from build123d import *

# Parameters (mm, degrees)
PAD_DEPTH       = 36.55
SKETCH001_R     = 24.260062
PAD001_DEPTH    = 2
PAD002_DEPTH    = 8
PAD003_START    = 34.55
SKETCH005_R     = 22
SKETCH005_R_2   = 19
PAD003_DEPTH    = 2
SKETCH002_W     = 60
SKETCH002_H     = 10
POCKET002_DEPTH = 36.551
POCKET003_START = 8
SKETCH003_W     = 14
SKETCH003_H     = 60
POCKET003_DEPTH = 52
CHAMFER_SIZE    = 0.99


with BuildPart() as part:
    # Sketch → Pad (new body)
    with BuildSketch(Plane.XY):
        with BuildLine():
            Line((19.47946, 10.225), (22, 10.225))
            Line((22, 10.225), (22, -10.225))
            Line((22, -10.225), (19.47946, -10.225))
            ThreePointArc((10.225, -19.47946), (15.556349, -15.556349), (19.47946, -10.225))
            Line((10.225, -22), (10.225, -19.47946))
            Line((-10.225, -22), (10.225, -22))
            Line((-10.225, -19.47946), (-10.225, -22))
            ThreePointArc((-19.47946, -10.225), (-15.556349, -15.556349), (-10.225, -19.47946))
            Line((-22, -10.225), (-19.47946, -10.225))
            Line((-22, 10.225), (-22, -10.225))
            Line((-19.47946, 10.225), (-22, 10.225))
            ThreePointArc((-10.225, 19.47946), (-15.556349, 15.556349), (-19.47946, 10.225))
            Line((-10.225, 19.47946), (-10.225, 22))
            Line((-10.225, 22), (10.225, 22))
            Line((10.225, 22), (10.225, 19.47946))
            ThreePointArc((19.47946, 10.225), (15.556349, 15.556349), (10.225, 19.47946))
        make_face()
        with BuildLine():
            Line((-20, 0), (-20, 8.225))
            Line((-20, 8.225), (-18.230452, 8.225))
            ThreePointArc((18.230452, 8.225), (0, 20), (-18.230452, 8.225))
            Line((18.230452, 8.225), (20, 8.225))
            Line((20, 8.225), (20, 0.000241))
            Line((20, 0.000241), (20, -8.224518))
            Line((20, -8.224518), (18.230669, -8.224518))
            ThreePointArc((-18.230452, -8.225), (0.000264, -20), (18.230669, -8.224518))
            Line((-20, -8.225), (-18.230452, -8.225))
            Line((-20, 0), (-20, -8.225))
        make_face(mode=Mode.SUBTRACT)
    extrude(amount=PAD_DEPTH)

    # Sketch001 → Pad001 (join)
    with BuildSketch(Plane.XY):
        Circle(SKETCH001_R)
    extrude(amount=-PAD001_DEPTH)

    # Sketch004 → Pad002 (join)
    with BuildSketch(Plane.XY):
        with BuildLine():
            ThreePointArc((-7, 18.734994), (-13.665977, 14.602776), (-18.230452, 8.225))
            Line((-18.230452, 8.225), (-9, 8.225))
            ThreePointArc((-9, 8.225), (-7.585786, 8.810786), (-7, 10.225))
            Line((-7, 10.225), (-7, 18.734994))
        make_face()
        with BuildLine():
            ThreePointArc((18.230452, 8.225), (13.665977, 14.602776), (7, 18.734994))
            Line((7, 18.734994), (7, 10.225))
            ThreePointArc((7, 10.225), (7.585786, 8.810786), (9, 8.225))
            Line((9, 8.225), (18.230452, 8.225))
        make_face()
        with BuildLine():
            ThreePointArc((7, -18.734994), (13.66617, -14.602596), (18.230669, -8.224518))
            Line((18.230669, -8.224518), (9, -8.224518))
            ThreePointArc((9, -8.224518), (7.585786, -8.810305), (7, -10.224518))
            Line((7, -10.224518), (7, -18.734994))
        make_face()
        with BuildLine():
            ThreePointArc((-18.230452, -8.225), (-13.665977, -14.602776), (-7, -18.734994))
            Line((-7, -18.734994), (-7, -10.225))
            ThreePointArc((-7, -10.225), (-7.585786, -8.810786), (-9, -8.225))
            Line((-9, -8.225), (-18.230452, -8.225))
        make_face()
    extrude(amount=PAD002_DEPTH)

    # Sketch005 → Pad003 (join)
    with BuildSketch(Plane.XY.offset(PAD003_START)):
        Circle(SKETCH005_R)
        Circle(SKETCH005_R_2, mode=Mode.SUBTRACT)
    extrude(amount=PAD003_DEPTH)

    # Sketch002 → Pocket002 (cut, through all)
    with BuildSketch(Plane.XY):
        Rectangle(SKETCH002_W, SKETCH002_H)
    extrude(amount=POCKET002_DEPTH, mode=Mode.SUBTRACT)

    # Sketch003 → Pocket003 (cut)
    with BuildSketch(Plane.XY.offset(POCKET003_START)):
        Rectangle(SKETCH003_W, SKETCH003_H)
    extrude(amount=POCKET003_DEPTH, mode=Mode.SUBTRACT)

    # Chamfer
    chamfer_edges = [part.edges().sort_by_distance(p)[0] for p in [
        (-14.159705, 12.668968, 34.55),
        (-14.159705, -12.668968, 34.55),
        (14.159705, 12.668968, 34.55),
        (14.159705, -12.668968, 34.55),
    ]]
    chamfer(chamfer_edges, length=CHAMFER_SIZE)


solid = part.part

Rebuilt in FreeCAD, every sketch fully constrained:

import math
import FreeCAD as App
import Part
import Sketcher

V = App.Vector
Q = App.Units.Quantity


def edges_at(feature, points):
    """Names of the edges that pass closest to the given points."""
    edges = feature.Shape.Edges
    near = lambda p: min(range(len(edges)), key=lambda i: edges[i].distToShape(Part.Vertex(*p))[0])
    return sorted({f"Edge{near(p) + 1}" for p in points})

doc = App.newDocument("Part")
body = doc.addObject("PartDesign::Body", "Body")

# Sketch on XY plane
sketch1 = doc.addObject("Sketcher::SketchObject", "Sketch")
body.addObject(sketch1)
sketch1.AttachmentSupport = (doc.XY_Plane, [""])
sketch1.MapMode = "FlatFace"
sketch1.addGeometry([
    Part.LineSegment(V(22, 10.2, 0), V(19.5, 10.2, 0)),  # 0
    Part.ArcOfCircle(Part.Circle(V(0, 0, 0), V(0, 0, 1), 22), math.radians(28), math.radians(62)),  # 1
    Part.LineSegment(V(10.2, 19.5, 0), V(10.2, 22, 0)),  # 2
    Part.LineSegment(V(10.2, 22, 0), V(-10.2, 22, 0)),  # 3
    Part.LineSegment(V(-10.2, 22, 0), V(-10.2, 19.5, 0)),  # 4
    Part.ArcOfCircle(Part.Circle(V(0, 0, 0), V(0, 0, 1), 22), math.radians(118), math.radians(152)),  # 5
    Part.LineSegment(V(-19.5, 10.2, 0), V(-22, 10.2, 0)),  # 6
    Part.LineSegment(V(-22, 10.2, 0), V(-22, -10.2, 0)),  # 7
    Part.LineSegment(V(-22, -10.2, 0), V(-19.5, -10.2, 0)),  # 8
    Part.ArcOfCircle(Part.Circle(V(0, 0, 0), V(0, 0, 1), 22), math.radians(-152), math.radians(-118)),  # 9
    Part.LineSegment(V(-10.2, -19.5, 0), V(-10.2, -22, 0)),  # 10
    Part.LineSegment(V(-10.2, -22, 0), V(10.2, -22, 0)),  # 11
    Part.LineSegment(V(10.2, -22, 0), V(10.2, -19.5, 0)),  # 12
    Part.ArcOfCircle(Part.Circle(V(0, 0, 0), V(0, 0, 1), 22), math.radians(-62), math.radians(-28)),  # 13
    Part.LineSegment(V(19.5, -10.2, 0), V(22, -10.2, 0)),  # 14
    Part.LineSegment(V(22, -10.2, 0), V(22, 10.2, 0)),  # 15
    Part.LineSegment(V(-20, 8.2, 0), V(-18.2, 8.2, 0)),  # 16
    Part.ArcOfCircle(Part.Circle(V(0, 0, 0), V(0, 0, 1), 20), math.radians(24), math.radians(156)),  # 17
    Part.LineSegment(V(18.2, 8.2, 0), V(20, 8.2, 0)),  # 18
    Part.LineSegment(V(20, 8.2, 0), V(20, -8.2, 0)),  # 19
    Part.LineSegment(V(20, -8.2, 0), V(18.2, -8.2, 0)),  # 20
    Part.ArcOfCircle(Part.Circle(V(0, 0, 0), V(0, 0, 1), 20), math.radians(-156), math.radians(-24)),  # 21
    Part.LineSegment(V(-18.2, -8.2, 0), V(-20, -8.2, 0)),  # 22
    Part.LineSegment(V(-20, -8.2, 0), V(-20, 8.2, 0)),  # 23
], False)
sketch1.addConstraint([
    Sketcher.Constraint("Coincident", 0, 2, 1, 1),
    Sketcher.Constraint("Coincident", 1, 2, 2, 1),
    Sketcher.Constraint("Coincident", 2, 2, 3, 1),
    Sketcher.Constraint("Coincident", 3, 2, 4, 1),
    Sketcher.Constraint("Coincident", 4, 2, 5, 1),
    Sketcher.Constraint("Coincident", 5, 2, 6, 1),
    Sketcher.Constraint("Coincident", 6, 2, 7, 1),
    Sketcher.Constraint("Coincident", 7, 2, 8, 1),
    Sketcher.Constraint("Coincident", 8, 2, 9, 1),
    Sketcher.Constraint("Coincident", 9, 2, 10, 1),
    Sketcher.Constraint("Coincident", 10, 2, 11, 1),
    Sketcher.Constraint("Coincident", 11, 2, 12, 1),
    Sketcher.Constraint("Coincident", 12, 2, 13, 1),
    Sketcher.Constraint("Coincident", 13, 2, 14, 1),
    Sketcher.Constraint("Coincident", 14, 2, 15, 1),
    Sketcher.Constraint("Coincident", 15, 2, 0, 1),
    Sketcher.Constraint("Coincident", 16, 2, 17, 2),
    Sketcher.Constraint("Coincident", 17, 1, 18, 1),
    Sketcher.Constraint("Coincident", 18, 2, 19, 1),
    Sketcher.Constraint("Coincident", 19, 2, 20, 1),
    Sketcher.Constraint("Coincident", 20, 2, 21, 2),
    Sketcher.Constraint("Coincident", 21, 1, 22, 1),
    Sketcher.Constraint("Coincident", 22, 2, 23, 1),
    Sketcher.Constraint("Coincident", 23, 2, 16, 1),
    Sketcher.Constraint("Horizontal", 0),
    Sketcher.Constraint("Vertical", 2),
    Sketcher.Constraint("Horizontal", 3),
    Sketcher.Constraint("Vertical", 4),
    Sketcher.Constraint("Horizontal", 6),
    Sketcher.Constraint("Vertical", 7),
    Sketcher.Constraint("Horizontal", 8),
    Sketcher.Constraint("Vertical", 10),
    Sketcher.Constraint("Horizontal", 11),
    Sketcher.Constraint("Vertical", 12),
    Sketcher.Constraint("Horizontal", 14),
    Sketcher.Constraint("Vertical", 15),
    Sketcher.Constraint("Horizontal", 16),
    Sketcher.Constraint("Horizontal", 18),
    Sketcher.Constraint("Vertical", 19),
    Sketcher.Constraint("Horizontal", 20),
    Sketcher.Constraint("Horizontal", 22),
    Sketcher.Constraint("Vertical", 23),
    Sketcher.Constraint("Coincident", 1, 3, -1, 1),
    Sketcher.Constraint("Coincident", 5, 3, -1, 1),
    Sketcher.Constraint("Coincident", 9, 3, -1, 1),
    Sketcher.Constraint("Coincident", 13, 3, -1, 1),
    Sketcher.Constraint("Coincident", 17, 3, -1, 1),
    Sketcher.Constraint("Coincident", 21, 3, -1, 1),
    Sketcher.Constraint("Equal", 1, 5),
    Sketcher.Constraint("Equal", 5, 9),
    Sketcher.Constraint("Equal", 9, 13),
    Sketcher.Constraint("Equal", 17, 21),
    Sketcher.Constraint("Symmetric", 2, 2, 10, 2, -1, 1),
    Sketcher.Constraint("Symmetric", 6, 2, 14, 2, -1, 1),
    Sketcher.Constraint("Symmetric", 18, 2, 22, 2, -1, 1),
    Sketcher.Constraint("Horizontal", 1, 2, 4, 2),
    Sketcher.Constraint("Horizontal", 0, 2, 5, 2),
    Sketcher.Constraint("Horizontal", 9, 2, 12, 2),
    Sketcher.Constraint("Horizontal", 8, 2, 13, 2),
    Sketcher.Constraint("Horizontal", 16, 2, 17, 1),
    Sketcher.Constraint("Equal", 14, 2),
    Sketcher.Constraint("Equal", 11, 7),
    Sketcher.Constraint("Radius", 1, Q("21.999999 mm")),
    Sketcher.Constraint("Radius", 17, Q("20 mm")),
    Sketcher.Constraint("DistanceY", -1, 1, 2, 2, Q("22 mm")),
    Sketcher.Constraint("DistanceX", -1, 1, 18, 2, Q("20 mm")),
    Sketcher.Constraint("DistanceY", 16, 2, 5, 2, Q("2 mm")),
    Sketcher.Constraint("DistanceX", 3, 2, 3, 1, Q("20.45 mm")),
    Sketcher.Constraint("DistanceX", 20, 2, 20, 1, Q("1.769331 mm")),
])
pad1 = doc.addObject("PartDesign::Pad", "Pad")
body.addObject(pad1)
pad1.Profile = sketch1
pad1.Length = 36.55

# Sketch on XY plane
sketch2 = doc.addObject("Sketcher::SketchObject", "Sketch001")
body.addObject(sketch2)
sketch2.AttachmentSupport = (doc.XY_Plane, [""])
sketch2.MapMode = "FlatFace"
sketch2.addGeometry(Part.Circle(V(0, 0, 0), V(0, 0, 1), 24), False)
sketch2.addConstraint([
    Sketcher.Constraint("Coincident", 0, 3, -1, 1),
    Sketcher.Constraint("Diameter", 0, Q("48.520124 mm")),
])
pad2 = doc.addObject("PartDesign::Pad", "Pad001")
body.addObject(pad2)
pad2.Profile = sketch2
pad2.Length = 2
pad2.Reversed = True

# Sketch on XY plane
sketch3 = doc.addObject("Sketcher::SketchObject", "Sketch002")
body.addObject(sketch3)
sketch3.AttachmentSupport = (doc.XY_Plane, [""])
sketch3.MapMode = "FlatFace"
sketch3.addGeometry([
    Part.ArcOfCircle(Part.Circle(V(0, 0, 0), V(0, 0, 1), 20), math.radians(110), math.radians(156)),  # 0
    Part.LineSegment(V(-18.2, 8.2, 0), V(-9, 8.2, 0)),  # 1
    Part.ArcOfCircle(Part.Circle(V(-9, 10.2, 0), V(0, 0, 1), 2), math.radians(-90), math.radians(0)),  # 2
    Part.LineSegment(V(-7, 10.2, 0), V(-7, 18.7, 0)),  # 3
    Part.ArcOfCircle(Part.Circle(V(0, 0, 0), V(0, 0, 1), 20), math.radians(24), math.radians(70)),  # 4
    Part.LineSegment(V(7, 18.7, 0), V(7, 10.2, 0)),  # 5
    Part.ArcOfCircle(Part.Circle(V(9, 10.2, 0), V(0, 0, 1), 2), math.radians(180), math.radians(270)),  # 6
    Part.LineSegment(V(9, 8.2, 0), V(18.2, 8.2, 0)),  # 7
    Part.ArcOfCircle(Part.Circle(V(0, 0, 0), V(0, 0, 1), 20), math.radians(-70), math.radians(-24)),  # 8
    Part.LineSegment(V(18.2, -8.2, 0), V(9, -8.2, 0)),  # 9
    Part.ArcOfCircle(Part.Circle(V(9, -10.2, 0), V(0, 0, 1), 2), math.radians(90), math.radians(180)),  # 10
    Part.LineSegment(V(7, -10.2, 0), V(7, -18.7, 0)),  # 11
    Part.ArcOfCircle(Part.Circle(V(0, 0, 0), V(0, 0, 1), 20), math.radians(-156), math.radians(-110)),  # 12
    Part.LineSegment(V(-7, -18.7, 0), V(-7, -10.2, 0)),  # 13
    Part.ArcOfCircle(Part.Circle(V(-9, -10.2, 0), V(0, 0, 1), 2), math.radians(0), math.radians(90)),  # 14
    Part.LineSegment(V(-9, -8.2, 0), V(-18.2, -8.2, 0)),  # 15
], False)
sketch3.addConstraint([
    Sketcher.Constraint("Coincident", 0, 2, 1, 1),
    Sketcher.Constraint("Tangent", 1, 2, 2, 1),
    Sketcher.Constraint("Tangent", 2, 2, 3, 1),
    Sketcher.Constraint("Coincident", 3, 2, 0, 1),
    Sketcher.Constraint("Coincident", 4, 2, 5, 1),
    Sketcher.Constraint("Tangent", 5, 2, 6, 1),
    Sketcher.Constraint("Tangent", 6, 2, 7, 1),
    Sketcher.Constraint("Coincident", 7, 2, 4, 1),
    Sketcher.Constraint("Coincident", 8, 2, 9, 1),
    Sketcher.Constraint("Tangent", 9, 2, 10, 1),
    Sketcher.Constraint("Tangent", 10, 2, 11, 1),
    Sketcher.Constraint("Coincident", 11, 2, 8, 1),
    Sketcher.Constraint("Coincident", 12, 2, 13, 1),
    Sketcher.Constraint("Tangent", 13, 2, 14, 1),
    Sketcher.Constraint("Tangent", 14, 2, 15, 1),
    Sketcher.Constraint("Coincident", 15, 2, 12, 1),
    Sketcher.Constraint("Horizontal", 1),
    Sketcher.Constraint("Vertical", 3),
    Sketcher.Constraint("Vertical", 5),
    Sketcher.Constraint("Horizontal", 7),
    Sketcher.Constraint("Horizontal", 9),
    Sketcher.Constraint("Vertical", 11),
    Sketcher.Constraint("Vertical", 13),
    Sketcher.Constraint("Horizontal", 15),
    Sketcher.Constraint("Coincident", 0, 3, -1, 1),
    Sketcher.Constraint("Coincident", 4, 3, -1, 1),
    Sketcher.Constraint("Coincident", 8, 3, -1, 1),
    Sketcher.Constraint("Coincident", 12, 3, -1, 1),
    Sketcher.Constraint("Equal", 0, 4),
    Sketcher.Constraint("Equal", 2, 6),
    Sketcher.Constraint("Equal", 6, 10),
    Sketcher.Constraint("Equal", 4, 12),
    Sketcher.Constraint("Equal", 10, 14),
    Sketcher.Constraint("Symmetric", 6, 3, 14, 3, -1, 1),
    Sketcher.Constraint("Symmetric", 3, 2, 11, 2, -1, 1),
    Sketcher.Constraint("Symmetric", 2, 3, 6, 3, -2),
    Sketcher.Constraint("Radius", 2, Q("1.999999 mm")),
    Sketcher.Constraint("DistanceX", 2, 3, -1, 1, Q("8.999999 mm")),
    Sketcher.Constraint("DistanceY", 15, 2, 0, 2, Q("16.45 mm")),
    Sketcher.Constraint("Radius", 0, Q("20.000003 mm")),
    Sketcher.Constraint("DistanceX", 9, 2, 9, 1, Q("9.230669 mm")),
])
pad3 = doc.addObject("PartDesign::Pad", "Pad002")
body.addObject(pad3)
pad3.Profile = sketch3
pad3.Length = 8

# Sketch on XY plane
sketch4 = doc.addObject("Sketcher::SketchObject", "Sketch003")
body.addObject(sketch4)
sketch4.AttachmentSupport = (doc.XY_Plane, [""])
sketch4.MapMode = "FlatFace"
sketch4.AttachmentOffset = App.Placement(V(0, 0, 34.55), App.Rotation())
sketch4.addGeometry([
    Part.Circle(V(0, 0, 0), V(0, 0, 1), 22),
    Part.Circle(V(0, 0, 0), V(0, 0, 1), 19),
], False)
sketch4.addConstraint([
    Sketcher.Constraint("Coincident", 0, 3, -1, 1),
    Sketcher.Constraint("Coincident", 1, 3, -1, 1),
    Sketcher.Constraint("Diameter", 0, Q("44 mm")),
    Sketcher.Constraint("Diameter", 1, Q("38 mm")),
])
pad4 = doc.addObject("PartDesign::Pad", "Pad003")
body.addObject(pad4)
pad4.Profile = sketch4
pad4.Length = 2

# Sketch on XY plane
sketch5 = doc.addObject("Sketcher::SketchObject", "Sketch004")
body.addObject(sketch5)
sketch5.AttachmentSupport = (doc.XY_Plane, [""])
sketch5.MapMode = "FlatFace"
sketch5.addGeometry([
    Part.LineSegment(V(-30, 5, 0), V(-30, -5, 0)),
    Part.LineSegment(V(-30, -5, 0), V(30, -5, 0)),
    Part.LineSegment(V(30, -5, 0), V(30, 5, 0)),
    Part.LineSegment(V(30, 5, 0), V(-30, 5, 0)),
], False)
sketch5.addConstraint([
    Sketcher.Constraint("Coincident", 0, 2, 1, 1),
    Sketcher.Constraint("Coincident", 1, 2, 2, 1),
    Sketcher.Constraint("Coincident", 2, 2, 3, 1),
    Sketcher.Constraint("Coincident", 3, 2, 0, 1),
    Sketcher.Constraint("Vertical", 0),
    Sketcher.Constraint("Horizontal", 1),
    Sketcher.Constraint("Vertical", 2),
    Sketcher.Constraint("Horizontal", 3),
    Sketcher.Constraint("Symmetric", 0, 2, 2, 2, -1, 1),
    Sketcher.Constraint("DistanceX", 1, 1, 1, 2, Q("60 mm")),
    Sketcher.Constraint("DistanceY", 0, 2, 0, 1, Q("10 mm")),
])
pocket1 = doc.addObject("PartDesign::Pocket", "Pocket")
body.addObject(pocket1)
pocket1.Profile = sketch5
pocket1.Type = "ThroughAll"
pocket1.Reversed = True

# Sketch on XY plane
sketch6 = doc.addObject("Sketcher::SketchObject", "Sketch005")
body.addObject(sketch6)
sketch6.AttachmentSupport = (doc.XY_Plane, [""])
sketch6.MapMode = "FlatFace"
sketch6.AttachmentOffset = App.Placement(V(0, 0, 8), App.Rotation())
sketch6.addGeometry([
    Part.LineSegment(V(-7, 30, 0), V(-7, -30, 0)),
    Part.LineSegment(V(-7, -30, 0), V(7, -30, 0)),
    Part.LineSegment(V(7, -30, 0), V(7, 30, 0)),
    Part.LineSegment(V(7, 30, 0), V(-7, 30, 0)),
], False)
sketch6.addConstraint([
    Sketcher.Constraint("Coincident", 0, 2, 1, 1),
    Sketcher.Constraint("Coincident", 1, 2, 2, 1),
    Sketcher.Constraint("Coincident", 2, 2, 3, 1),
    Sketcher.Constraint("Coincident", 3, 2, 0, 1),
    Sketcher.Constraint("Vertical", 0),
    Sketcher.Constraint("Horizontal", 1),
    Sketcher.Constraint("Vertical", 2),
    Sketcher.Constraint("Horizontal", 3),
    Sketcher.Constraint("Symmetric", 0, 2, 2, 2, -1, 1),
    Sketcher.Constraint("DistanceX", 1, 1, 1, 2, Q("14 mm")),
    Sketcher.Constraint("DistanceY", 0, 2, 0, 1, Q("60 mm")),
])
pocket2 = doc.addObject("PartDesign::Pocket", "Pocket001")
body.addObject(pocket2)
pocket2.Profile = sketch6
pocket2.Length = 52
pocket2.Reversed = True
doc.recompute()

chamfer = doc.addObject("PartDesign::Chamfer", "Chamfer")
body.addObject(chamfer)
chamfer.Base = (pocket2, edges_at(pocket2, [
    (-14.16, 12.669, 34.55),
    (-14.16, -12.669, 34.55),
    (14.16, 12.669, 34.55),
    (14.16, -12.669, 34.55),
]))
chamfer.Size = 0.99

doc.recompute()
